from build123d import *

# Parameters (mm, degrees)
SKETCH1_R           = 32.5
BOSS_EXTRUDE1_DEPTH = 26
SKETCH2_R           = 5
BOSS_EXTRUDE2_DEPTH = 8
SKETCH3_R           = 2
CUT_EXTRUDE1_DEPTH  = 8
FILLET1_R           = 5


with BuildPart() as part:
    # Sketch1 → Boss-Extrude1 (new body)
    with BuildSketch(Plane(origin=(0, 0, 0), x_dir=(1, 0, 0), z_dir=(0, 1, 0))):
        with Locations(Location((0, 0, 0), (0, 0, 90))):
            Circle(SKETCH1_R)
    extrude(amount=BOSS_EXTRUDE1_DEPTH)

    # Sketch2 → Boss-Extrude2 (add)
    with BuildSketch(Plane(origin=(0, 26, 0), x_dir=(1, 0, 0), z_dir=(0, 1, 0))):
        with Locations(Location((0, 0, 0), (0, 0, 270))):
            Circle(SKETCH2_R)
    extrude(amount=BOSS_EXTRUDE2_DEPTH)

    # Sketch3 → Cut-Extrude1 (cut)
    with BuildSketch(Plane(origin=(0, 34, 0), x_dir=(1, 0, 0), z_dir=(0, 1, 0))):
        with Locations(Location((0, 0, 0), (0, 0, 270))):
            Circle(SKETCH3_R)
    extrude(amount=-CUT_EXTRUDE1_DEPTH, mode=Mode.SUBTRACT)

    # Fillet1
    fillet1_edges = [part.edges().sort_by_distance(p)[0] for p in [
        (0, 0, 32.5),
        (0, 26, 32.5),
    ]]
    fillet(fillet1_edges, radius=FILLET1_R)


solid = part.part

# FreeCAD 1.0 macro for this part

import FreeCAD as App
import Part
import Sketcher
from FreeCAD import Vector


def edges_at(feature, points):
    """Names of the edges that pass closest to the given points."""
    edges = feature.Shape.Edges
    near = lambda p: min(range(len(edges)), key=lambda i: edges[i].distToShape(Part.Vertex(*p))[0])
    return sorted({f"Edge{near(p) + 1}" for p in points})

doc = App.newDocument("Part")
body = doc.addObject("PartDesign::Body", "Body")

sketch1 = doc.addObject("Sketcher::SketchObject", "Sketch")
body.addObject(sketch1)
sketch1.AttachmentSupport = (doc.XZ_Plane, [""])
sketch1.MapMode = "FlatFace"
sketch1.addGeometry(Part.Circle(Vector(0, 0, 0), Vector(0, 0, 1), 32), False)
sketch1.addConstraint(Sketcher.Constraint("Coincident", 0, 3, -1, 1))
sketch1.addConstraint(Sketcher.Constraint("Diameter", 0, 65.0))
pad1 = doc.addObject("PartDesign::Pad", "Pad")
body.addObject(pad1)
pad1.Profile = sketch1
pad1.Length = 26
pad1.Reversed = True

sketch2 = doc.addObject("Sketcher::SketchObject", "Sketch001")
body.addObject(sketch2)
sketch2.AttachmentSupport = (doc.XZ_Plane, [""])
sketch2.MapMode = "FlatFace"
sketch2.AttachmentOffset = App.Placement(Vector(0, 0, -26), App.Rotation())
sketch2.addGeometry(Part.Circle(Vector(0, 0, 0), Vector(0, 0, 1), 5), False)
sketch2.addConstraint(Sketcher.Constraint("Coincident", 0, 3, -1, 1))
sketch2.addConstraint(Sketcher.Constraint("Diameter", 0, 10.0))
pad2 = doc.addObject("PartDesign::Pad", "Pad001")
body.addObject(pad2)
pad2.Profile = sketch2
pad2.Length = 8
pad2.Reversed = True

sketch3 = doc.addObject("Sketcher::SketchObject", "Sketch002")
body.addObject(sketch3)
sketch3.AttachmentSupport = (doc.XZ_Plane, [""])
sketch3.MapMode = "FlatFace"
sketch3.AttachmentOffset = App.Placement(Vector(0, 0, -34), App.Rotation())
sketch3.addGeometry(Part.Circle(Vector(0, 0, 0), Vector(0, 0, 1), 2), False)
sketch3.addConstraint(Sketcher.Constraint("Coincident", 0, 3, -1, 1))
sketch3.addConstraint(Sketcher.Constraint("Diameter", 0, 4.0))
pocket1 = doc.addObject("PartDesign::Pocket", "Pocket")
body.addObject(pocket1)
pocket1.Profile = sketch3
pocket1.Length = 8
pocket1.Reversed = True
doc.recompute()

fillet = doc.addObject("PartDesign::Fillet", "Fillet")
body.addObject(fillet)
fillet.Base = (pocket1, edges_at(pocket1, [(0, 0, 32.5), (0, 26, 32.5)]))
fillet.Radius = 5

doc.recompute()
